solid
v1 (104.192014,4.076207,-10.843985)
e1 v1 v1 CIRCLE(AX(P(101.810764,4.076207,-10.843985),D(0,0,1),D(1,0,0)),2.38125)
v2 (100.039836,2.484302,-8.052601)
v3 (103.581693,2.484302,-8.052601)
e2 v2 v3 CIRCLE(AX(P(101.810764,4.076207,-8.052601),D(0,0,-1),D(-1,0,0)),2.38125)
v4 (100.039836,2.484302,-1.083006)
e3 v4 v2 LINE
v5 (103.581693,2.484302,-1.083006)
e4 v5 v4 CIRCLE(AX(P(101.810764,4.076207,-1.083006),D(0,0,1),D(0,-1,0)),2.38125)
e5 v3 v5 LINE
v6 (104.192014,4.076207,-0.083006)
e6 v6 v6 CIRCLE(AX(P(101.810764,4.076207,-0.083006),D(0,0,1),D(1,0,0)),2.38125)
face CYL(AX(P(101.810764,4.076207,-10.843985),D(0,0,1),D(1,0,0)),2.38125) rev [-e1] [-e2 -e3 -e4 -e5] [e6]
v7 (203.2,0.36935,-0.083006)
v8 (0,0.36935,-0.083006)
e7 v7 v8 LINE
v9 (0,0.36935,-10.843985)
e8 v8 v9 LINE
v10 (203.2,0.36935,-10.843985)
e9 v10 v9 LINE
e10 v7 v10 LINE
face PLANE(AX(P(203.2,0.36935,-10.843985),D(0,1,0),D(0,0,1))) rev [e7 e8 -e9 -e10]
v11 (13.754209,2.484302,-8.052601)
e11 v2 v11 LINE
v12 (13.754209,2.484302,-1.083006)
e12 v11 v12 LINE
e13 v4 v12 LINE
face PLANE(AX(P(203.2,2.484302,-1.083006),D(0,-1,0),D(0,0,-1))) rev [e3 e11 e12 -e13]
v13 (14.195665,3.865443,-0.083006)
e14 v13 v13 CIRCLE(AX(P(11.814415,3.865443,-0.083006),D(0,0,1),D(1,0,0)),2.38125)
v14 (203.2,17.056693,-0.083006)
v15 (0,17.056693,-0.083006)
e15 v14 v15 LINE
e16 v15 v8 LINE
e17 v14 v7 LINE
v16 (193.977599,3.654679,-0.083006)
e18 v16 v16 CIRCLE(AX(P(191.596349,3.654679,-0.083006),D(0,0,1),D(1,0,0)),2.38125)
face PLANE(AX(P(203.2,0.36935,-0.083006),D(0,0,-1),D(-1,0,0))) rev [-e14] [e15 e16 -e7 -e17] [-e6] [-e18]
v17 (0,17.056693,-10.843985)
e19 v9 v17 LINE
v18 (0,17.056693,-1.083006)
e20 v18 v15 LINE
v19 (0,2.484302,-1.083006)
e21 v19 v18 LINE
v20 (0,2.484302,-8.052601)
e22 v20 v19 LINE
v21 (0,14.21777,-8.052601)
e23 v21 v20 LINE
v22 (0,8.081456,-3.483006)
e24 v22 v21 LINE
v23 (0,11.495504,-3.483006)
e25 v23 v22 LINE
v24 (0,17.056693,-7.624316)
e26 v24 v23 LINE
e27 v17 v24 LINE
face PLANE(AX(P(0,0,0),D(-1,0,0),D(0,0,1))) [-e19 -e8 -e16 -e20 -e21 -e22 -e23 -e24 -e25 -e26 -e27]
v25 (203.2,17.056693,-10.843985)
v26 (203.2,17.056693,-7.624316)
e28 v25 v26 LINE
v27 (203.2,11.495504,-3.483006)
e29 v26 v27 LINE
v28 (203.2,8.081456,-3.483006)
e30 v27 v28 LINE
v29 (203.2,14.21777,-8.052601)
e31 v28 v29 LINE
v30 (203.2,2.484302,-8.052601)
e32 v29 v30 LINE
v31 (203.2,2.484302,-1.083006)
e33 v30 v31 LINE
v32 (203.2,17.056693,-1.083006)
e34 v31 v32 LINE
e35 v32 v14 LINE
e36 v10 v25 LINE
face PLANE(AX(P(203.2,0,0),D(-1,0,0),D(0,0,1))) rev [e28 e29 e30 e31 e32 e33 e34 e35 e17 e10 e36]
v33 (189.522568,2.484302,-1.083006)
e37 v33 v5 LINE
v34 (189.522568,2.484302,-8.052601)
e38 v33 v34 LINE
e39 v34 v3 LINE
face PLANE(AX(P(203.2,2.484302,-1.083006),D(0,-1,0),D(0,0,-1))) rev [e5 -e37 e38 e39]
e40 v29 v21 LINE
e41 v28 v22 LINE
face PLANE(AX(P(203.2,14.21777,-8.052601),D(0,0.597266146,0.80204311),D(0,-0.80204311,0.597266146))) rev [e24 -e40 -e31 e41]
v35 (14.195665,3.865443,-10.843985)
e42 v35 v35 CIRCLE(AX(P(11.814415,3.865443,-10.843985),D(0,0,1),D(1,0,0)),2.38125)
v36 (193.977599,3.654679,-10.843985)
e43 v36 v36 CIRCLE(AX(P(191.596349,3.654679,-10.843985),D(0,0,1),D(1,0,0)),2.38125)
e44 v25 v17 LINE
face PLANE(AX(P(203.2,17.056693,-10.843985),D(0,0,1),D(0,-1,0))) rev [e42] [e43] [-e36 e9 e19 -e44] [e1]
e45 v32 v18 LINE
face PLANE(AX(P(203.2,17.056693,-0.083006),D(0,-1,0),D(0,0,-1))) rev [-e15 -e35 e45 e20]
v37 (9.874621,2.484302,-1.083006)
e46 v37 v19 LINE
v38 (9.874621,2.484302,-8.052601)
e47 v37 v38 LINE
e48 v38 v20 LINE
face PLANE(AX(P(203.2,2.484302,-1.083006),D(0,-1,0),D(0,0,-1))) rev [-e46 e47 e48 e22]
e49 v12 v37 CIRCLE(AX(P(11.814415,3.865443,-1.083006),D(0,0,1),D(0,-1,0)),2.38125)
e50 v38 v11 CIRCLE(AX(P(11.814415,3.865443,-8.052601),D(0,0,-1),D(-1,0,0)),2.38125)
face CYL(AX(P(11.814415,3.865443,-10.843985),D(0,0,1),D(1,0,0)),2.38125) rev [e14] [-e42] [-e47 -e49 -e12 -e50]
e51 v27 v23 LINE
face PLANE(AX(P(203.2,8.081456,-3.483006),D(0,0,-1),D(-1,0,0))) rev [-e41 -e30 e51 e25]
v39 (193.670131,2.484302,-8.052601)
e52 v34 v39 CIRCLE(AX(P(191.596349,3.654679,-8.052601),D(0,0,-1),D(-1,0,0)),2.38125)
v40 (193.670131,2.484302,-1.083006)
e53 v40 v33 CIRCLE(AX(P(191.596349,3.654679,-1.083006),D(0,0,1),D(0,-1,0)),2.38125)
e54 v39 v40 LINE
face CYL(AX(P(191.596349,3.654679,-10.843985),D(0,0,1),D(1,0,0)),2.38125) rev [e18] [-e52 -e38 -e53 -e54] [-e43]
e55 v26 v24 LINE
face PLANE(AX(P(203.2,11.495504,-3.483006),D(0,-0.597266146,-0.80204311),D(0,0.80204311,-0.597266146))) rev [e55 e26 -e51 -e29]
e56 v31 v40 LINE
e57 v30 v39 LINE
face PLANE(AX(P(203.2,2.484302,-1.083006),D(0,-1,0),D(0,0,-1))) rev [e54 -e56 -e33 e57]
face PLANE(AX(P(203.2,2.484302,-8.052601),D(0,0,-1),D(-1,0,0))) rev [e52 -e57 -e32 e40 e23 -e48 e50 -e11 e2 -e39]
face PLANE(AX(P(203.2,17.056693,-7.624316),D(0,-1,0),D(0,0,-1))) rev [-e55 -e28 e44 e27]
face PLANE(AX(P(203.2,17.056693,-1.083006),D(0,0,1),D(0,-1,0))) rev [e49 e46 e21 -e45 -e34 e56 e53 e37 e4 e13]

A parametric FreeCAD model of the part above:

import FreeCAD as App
import Part
import Sketcher
from FreeCAD import Vector
Q = App.Units.Quantity

doc = App.newDocument("Part")
body = doc.addObject("PartDesign::Body", "Body")

sketch1 = body.newObject("Sketcher::SketchObject", "Sketch")
sketch1.AttachmentSupport = (doc.getObject("YZ_Plane"), [""])
sketch1.MapMode = "FlatFace"
sketch1.addGeometry(Part.LineSegment(Vector(17.056693, -0.083006, 0), Vector(0.36935, -0.083006, 0)), False)
sketch1.addGeometry(Part.LineSegment(Vector(0.36935, -0.083006, 0), Vector(0.36935, -10.843985, 0)), False)
sketch1.addGeometry(Part.LineSegment(Vector(0.36935, -10.843985, 0), Vector(17.056693, -10.843985, 0)), False)
sketch1.addGeometry(Part.LineSegment(Vector(17.056693, -10.843985, 0), Vector(17.056693, -7.624316, 0)), False)
sketch1.addGeometry(Part.LineSegment(Vector(17.056693, -7.624316, 0), Vector(11.495504, -3.483006, 0)), False)
sketch1.addGeometry(Part.LineSegment(Vector(11.495504, -3.483006, 0), Vector(8.081456, -3.483006, 0)), False)
sketch1.addGeometry(Part.LineSegment(Vector(8.081456, -3.483006, 0), Vector(14.21777, -8.052601, 0)), False)
sketch1.addGeometry(Part.LineSegment(Vector(14.21777, -8.052601, 0), Vector(2.484302, -8.052601, 0)), False)
sketch1.addGeometry(Part.LineSegment(Vector(2.484302, -8.052601, 0), Vector(2.484302, -1.083006, 0)), False)
sketch1.addGeometry(Part.LineSegment(Vector(2.484302, -1.083006, 0), Vector(17.056693, -1.083006, 0)), False)
sketch1.addGeometry(Part.LineSegment(Vector(17.056693, -1.083006, 0), Vector(17.056693, -0.083006, 0)), False)
sketch1.addConstraint(Sketcher.Constraint("Coincident", 0, 2, 1, 1))
sketch1.addConstraint(Sketcher.Constraint("Coincident", 1, 2, 2, 1))
sketch1.addConstraint(Sketcher.Constraint("Coincident", 2, 2, 3, 1))
sketch1.addConstraint(Sketcher.Constraint("Coincident", 3, 2, 4, 1))
sketch1.addConstraint(Sketcher.Constraint("Coincident", 4, 2, 5, 1))
sketch1.addConstraint(Sketcher.Constraint("Coincident", 5, 2, 6, 1))
sketch1.addConstraint(Sketcher.Constraint("Coincident", 6, 2, 7, 1))
sketch1.addConstraint(Sketcher.Constraint("Coincident", 7, 2, 8, 1))
sketch1.addConstraint(Sketcher.Constraint("Coincident", 8, 2, 9, 1))
sketch1.addConstraint(Sketcher.Constraint("Coincident", 9, 2, 10, 1))
sketch1.addConstraint(Sketcher.Constraint("Coincident", 10, 2, 0, 1))
sketch1.addConstraint(Sketcher.Constraint("Horizontal", 0))
sketch1.addConstraint(Sketcher.Constraint("Vertical", 1))
sketch1.addConstraint(Sketcher.Constraint("Horizontal", 2))
sketch1.addConstraint(Sketcher.Constraint("Vertical", 3))
sketch1.addConstraint(Sketcher.Constraint("Horizontal", 5))
sketch1.addConstraint(Sketcher.Constraint("Horizontal", 7))
sketch1.addConstraint(Sketcher.Constraint("Vertical", 8))
sketch1.addConstraint(Sketcher.Constraint("Horizontal", 9))
sketch1.addConstraint(Sketcher.Constraint("Vertical", 10))
sketch1.addConstraint(Sketcher.Constraint("Parallel", 4, 6))
sketch1.addConstraint(Sketcher.Constraint("Vertical", 3, 2, 9, 2))
sketch1.addConstraint(Sketcher.Constraint("DistanceY", 10, 1, 10, 2, Q("1 mm")))
sketch1.addConstraint(Sketcher.Constraint("DistanceX", 7, 2, 7, 1, Q("11.733468 mm")))
sketch1.addConstraint(Sketcher.Constraint("DistanceX", 9, 1, 9, 2, Q("14.572391 mm")))
sketch1.addConstraint(Sketcher.Constraint("DistanceY", 1, 2, 1, 1, Q("10.76098 mm")))
sketch1.addConstraint(Sketcher.Constraint("DistanceY", 3, 1, 3, 2, Q("3.219669 mm")))
sketch1.addConstraint(Sketcher.Constraint("DistanceY", 6, 2, -1, 1, Q("8.052601 mm")))
sketch1.addConstraint(Sketcher.Constraint("DistanceX", -1, 1, 7, 2, Q("2.484302 mm")))
sketch1.addConstraint(Sketcher.Constraint("DistanceY", 4, 2, 0, 2, Q("3.4 mm")))
sketch1.addConstraint(Sketcher.Constraint("DistanceX", 0, 2, 0, 1, Q("16.687342 mm")))
sketch1.addConstraint(Sketcher.Constraint("DistanceX", 5, 2, 5, 1, Q("3.414048 mm")))
sketch1.addConstraint(Sketcher.Constraint("DistanceY", 8, 1, 8, 2, Q("6.969596 mm")))
pad1 = body.newObject("PartDesign::Pad", "Pad")
pad1.Profile = sketch1
pad1.Length = Q("8 in")

sketch2 = body.newObject("Sketcher::SketchObject", "Sketch001")
sketch2.AttachmentSupport = (doc.getObject("XY_Plane"), [""])
sketch2.MapMode = "FlatFace"
sketch2.AttachmentOffset = App.Placement(Vector(0, 0, -0.083006), App.Rotation())
sketch2.addGeometry(Part.Circle(Vector(11.814415, 3.865443, 0), Vector(0, 0, 1), 2.38125), False)
sketch2.addGeometry(Part.Circle(Vector(191.596349, 3.654679, 0), Vector(0, 0, 1), 2.38125), False)
sketch2.addGeometry(Part.Circle(Vector(101.810764, 4.076207, 0), Vector(0, 0, 1), 2.38125), False)
sketch2.addConstraint(Sketcher.Constraint("Equal", 0, 1))
sketch2.addConstraint(Sketcher.Constraint("Equal", 1, 2))
sketch2.addConstraint(Sketcher.Constraint("Diameter", 0, Q("0.1875 in")))
sketch2.addConstraint(Sketcher.Constraint("DistanceX", -1, 1, 1, 3, Q("191.596349 mm")))
sketch2.addConstraint(Sketcher.Constraint("DistanceY", -1, 1, 1, 3, Q("3.654679 mm")))
sketch2.addConstraint(Sketcher.Constraint("DistanceY", 1, 3, 2, 3, Q("0.421529 mm")))
sketch2.addConstraint(Sketcher.Constraint("DistanceX", 0, 3, 2, 3, Q("89.996349 mm")))
sketch2.addConstraint(Sketcher.Constraint("DistanceX", -1, 1, 0, 3, Q("11.814415 mm")))
sketch2.addConstraint(Sketcher.Constraint("DistanceY", -1, 1, 0, 3, Q("3.865443 mm")))
pocket1 = body.newObject("PartDesign::Pocket", "Pocket")
pocket1.Profile = sketch2
pocket1.Type = "ThroughAll"

doc.recompute()
